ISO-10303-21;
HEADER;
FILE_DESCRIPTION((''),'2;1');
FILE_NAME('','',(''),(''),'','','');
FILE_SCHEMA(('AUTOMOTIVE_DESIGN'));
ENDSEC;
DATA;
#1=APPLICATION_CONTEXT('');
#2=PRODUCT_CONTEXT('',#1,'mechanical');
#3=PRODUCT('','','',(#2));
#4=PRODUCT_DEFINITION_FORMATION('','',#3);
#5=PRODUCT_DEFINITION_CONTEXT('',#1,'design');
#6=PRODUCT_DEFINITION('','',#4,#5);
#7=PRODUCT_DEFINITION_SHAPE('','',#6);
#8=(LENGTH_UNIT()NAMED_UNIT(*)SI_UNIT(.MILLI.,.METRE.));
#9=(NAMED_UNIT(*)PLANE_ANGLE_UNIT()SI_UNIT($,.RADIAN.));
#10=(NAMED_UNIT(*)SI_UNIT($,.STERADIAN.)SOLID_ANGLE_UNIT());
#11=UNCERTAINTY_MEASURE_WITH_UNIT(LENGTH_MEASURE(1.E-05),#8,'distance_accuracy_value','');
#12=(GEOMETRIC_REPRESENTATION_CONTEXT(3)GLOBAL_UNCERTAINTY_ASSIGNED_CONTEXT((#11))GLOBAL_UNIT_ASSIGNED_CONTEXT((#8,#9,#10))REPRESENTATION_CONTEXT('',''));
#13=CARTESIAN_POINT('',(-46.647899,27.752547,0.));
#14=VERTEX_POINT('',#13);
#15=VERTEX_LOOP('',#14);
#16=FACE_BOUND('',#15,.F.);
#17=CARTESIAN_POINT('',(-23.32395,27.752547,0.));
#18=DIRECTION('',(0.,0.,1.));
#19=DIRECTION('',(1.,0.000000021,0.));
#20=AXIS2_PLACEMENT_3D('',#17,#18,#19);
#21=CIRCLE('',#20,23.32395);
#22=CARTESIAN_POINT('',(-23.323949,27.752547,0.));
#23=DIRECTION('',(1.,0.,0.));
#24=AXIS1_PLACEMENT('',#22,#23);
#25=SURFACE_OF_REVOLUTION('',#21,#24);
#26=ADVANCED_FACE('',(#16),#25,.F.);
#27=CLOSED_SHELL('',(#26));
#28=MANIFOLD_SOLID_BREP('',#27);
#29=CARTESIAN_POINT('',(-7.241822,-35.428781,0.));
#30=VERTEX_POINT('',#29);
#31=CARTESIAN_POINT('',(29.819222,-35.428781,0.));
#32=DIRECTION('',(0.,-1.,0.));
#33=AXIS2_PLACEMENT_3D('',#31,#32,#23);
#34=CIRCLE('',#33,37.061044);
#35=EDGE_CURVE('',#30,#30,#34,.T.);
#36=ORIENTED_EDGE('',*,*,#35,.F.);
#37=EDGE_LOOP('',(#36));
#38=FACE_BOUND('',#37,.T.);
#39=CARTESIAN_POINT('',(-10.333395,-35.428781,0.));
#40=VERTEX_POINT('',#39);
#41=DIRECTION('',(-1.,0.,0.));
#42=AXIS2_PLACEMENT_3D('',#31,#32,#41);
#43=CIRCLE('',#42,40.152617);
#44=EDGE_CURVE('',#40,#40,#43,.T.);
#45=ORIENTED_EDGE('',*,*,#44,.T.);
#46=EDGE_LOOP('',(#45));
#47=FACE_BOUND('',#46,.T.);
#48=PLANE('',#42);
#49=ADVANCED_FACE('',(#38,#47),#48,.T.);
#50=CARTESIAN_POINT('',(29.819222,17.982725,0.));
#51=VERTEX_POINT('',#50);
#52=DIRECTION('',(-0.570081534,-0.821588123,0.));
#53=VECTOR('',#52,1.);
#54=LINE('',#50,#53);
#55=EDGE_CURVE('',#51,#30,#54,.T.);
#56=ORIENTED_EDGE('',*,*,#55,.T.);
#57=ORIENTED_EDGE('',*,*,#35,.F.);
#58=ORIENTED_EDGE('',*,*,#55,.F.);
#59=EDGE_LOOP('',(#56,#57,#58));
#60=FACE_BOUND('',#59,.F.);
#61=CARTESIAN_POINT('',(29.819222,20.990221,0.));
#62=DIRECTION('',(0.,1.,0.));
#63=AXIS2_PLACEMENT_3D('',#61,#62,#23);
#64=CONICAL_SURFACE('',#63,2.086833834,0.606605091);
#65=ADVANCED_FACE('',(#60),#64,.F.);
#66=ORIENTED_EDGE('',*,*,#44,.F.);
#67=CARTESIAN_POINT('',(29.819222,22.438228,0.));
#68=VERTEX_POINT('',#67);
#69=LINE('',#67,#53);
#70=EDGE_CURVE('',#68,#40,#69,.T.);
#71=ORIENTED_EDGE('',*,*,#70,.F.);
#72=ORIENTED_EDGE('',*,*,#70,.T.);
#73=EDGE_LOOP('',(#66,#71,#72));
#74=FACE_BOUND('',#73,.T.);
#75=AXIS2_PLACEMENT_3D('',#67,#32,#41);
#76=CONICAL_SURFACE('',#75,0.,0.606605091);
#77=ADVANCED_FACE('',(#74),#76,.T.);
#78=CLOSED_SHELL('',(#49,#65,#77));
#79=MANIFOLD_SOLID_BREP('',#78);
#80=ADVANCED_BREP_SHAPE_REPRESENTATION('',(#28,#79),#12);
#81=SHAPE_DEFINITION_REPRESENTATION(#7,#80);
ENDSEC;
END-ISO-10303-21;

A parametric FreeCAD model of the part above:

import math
import FreeCAD as App
import Part
import Sketcher
from FreeCAD import Vector
Q = App.Units.Quantity


def faces_at(feature, points):
    """Names of the faces that lie closest to the given points."""
    faces = feature.Shape.Faces
    near = lambda p: min(range(len(faces)), key=lambda i: faces[i].distToShape(Part.Vertex(*p))[0])
    return sorted({f"Face{near(p) + 1}" for p in points})


def add_polygon(sketch, points):
    """Adds a closed chain of lines whose ends are joined by coincident constraints."""
    first, n = sketch.GeometryCount, len(points)
    for a, b in zip(points, points[1:] + points[:1]):
        sketch.addGeometry(Part.LineSegment(App.Vector(*a, 0), App.Vector(*b, 0)), False)
    for i in range(n):
        sketch.addConstraint(Sketcher.Constraint("Coincident", first + i, 2, first + (i + 1) % n, 1))

doc = App.newDocument("Part")
body = doc.addObject("PartDesign::Body", "Body")

sketch1 = body.newObject("Sketcher::SketchObject", "Sketch")
sketch1.AttachmentSupport = (doc.getObject("XY_Plane"), [""])
sketch1.MapMode = "FlatFace"
sketch1.addGeometry([
    Part.ArcOfCircle(Part.Circle(Vector(-23.32395, 27.752547, 0), Vector(0, 0, 1), 23.32395), math.radians(0.000001), math.radians(179.999999)),
    Part.LineSegment(Vector(-46.647899, 27.752547, 0), Vector(0, 27.752547, 0)),
], False)
sketch1.addGeometry(Part.LineSegment(Vector(-46.647899, 27.752547, 0), Vector(0, 27.752547, 0)), True)
sketch1.addConstraint([
    Sketcher.Constraint("Coincident", 0, 1, 1, 2),
    Sketcher.Constraint("Coincident", 1, 1, 0, 2),
    Sketcher.Constraint("Horizontal", 1),
    Sketcher.Constraint("Horizontal", 2),
    Sketcher.Constraint("Coincident", 2, 1, 1, 1),
    Sketcher.Constraint("PointOnObject", 0, 1, -2),
    Sketcher.Constraint("PointOnObject", 2, 2, -2),
    Sketcher.Constraint("Radius", 0, 23.32395),
    Sketcher.Constraint("DistanceY", -1, 1, 0, 3, 27.752547),
    Sketcher.Constraint("DistanceY", -1, 1, 0, 1, 27.752547),
])
revolution = body.newObject("PartDesign::Revolution", "Revolution")
revolution.Profile = sketch1
revolution.ReferenceAxis = (sketch1, ["Axis0"])
revolution.Angle = 360
body2 = doc.addObject("PartDesign::Body", "Body001")

sketch2 = body2.newObject("Sketcher::SketchObject", "Sketch001")
sketch2.AttachmentSupport = (doc.getObject("XY_Plane001"), [""])
sketch2.MapMode = "FlatFace"
add_polygon(sketch2, [(29.819222, -35.428781), (29.819222, 22.438228), (-10.333395, -35.428781)])
sketch2.addGeometry(Part.LineSegment(Vector(29.819222, 22.438228, 0), Vector(29.819222, -35.428781, 0)), True)
sketch2.addConstraint([
    Sketcher.Constraint("Vertical", 0),
    Sketcher.Constraint("Horizontal", 2),
    Sketcher.Constraint("Vertical", 3),
    Sketcher.Constraint("Coincident", 3, 1, 0, 2),
    Sketcher.Constraint("Horizontal", 1, 2, 3, 2),
    Sketcher.Constraint("DistanceY", 0, 1, 0, 2, 57.867009),
    Sketcher.Constraint("DistanceX", 2, 1, 2, 2, 40.152617),
    Sketcher.Constraint("DistanceX", -1, 1, 0, 2, 29.819222),
    Sketcher.Constraint("DistanceY", 1, 2, -1, 1, 35.428781),
])
revolution2 = body2.newObject("PartDesign::Revolution", "Revolution001")
revolution2.Profile = sketch2
revolution2.ReferenceAxis = (sketch2, ["Axis0"])
revolution2.Angle = 360
doc.recompute()

thickness = body2.newObject("PartDesign::Thickness", "Thickness")
thickness.Base = (revolution2, faces_at(revolution2, [(29.819, -35.429, 0)]))
thickness.Value = Q("0.1 in")
thickness.Reversed = True
thickness.Join = "Arc"

doc.recompute()
